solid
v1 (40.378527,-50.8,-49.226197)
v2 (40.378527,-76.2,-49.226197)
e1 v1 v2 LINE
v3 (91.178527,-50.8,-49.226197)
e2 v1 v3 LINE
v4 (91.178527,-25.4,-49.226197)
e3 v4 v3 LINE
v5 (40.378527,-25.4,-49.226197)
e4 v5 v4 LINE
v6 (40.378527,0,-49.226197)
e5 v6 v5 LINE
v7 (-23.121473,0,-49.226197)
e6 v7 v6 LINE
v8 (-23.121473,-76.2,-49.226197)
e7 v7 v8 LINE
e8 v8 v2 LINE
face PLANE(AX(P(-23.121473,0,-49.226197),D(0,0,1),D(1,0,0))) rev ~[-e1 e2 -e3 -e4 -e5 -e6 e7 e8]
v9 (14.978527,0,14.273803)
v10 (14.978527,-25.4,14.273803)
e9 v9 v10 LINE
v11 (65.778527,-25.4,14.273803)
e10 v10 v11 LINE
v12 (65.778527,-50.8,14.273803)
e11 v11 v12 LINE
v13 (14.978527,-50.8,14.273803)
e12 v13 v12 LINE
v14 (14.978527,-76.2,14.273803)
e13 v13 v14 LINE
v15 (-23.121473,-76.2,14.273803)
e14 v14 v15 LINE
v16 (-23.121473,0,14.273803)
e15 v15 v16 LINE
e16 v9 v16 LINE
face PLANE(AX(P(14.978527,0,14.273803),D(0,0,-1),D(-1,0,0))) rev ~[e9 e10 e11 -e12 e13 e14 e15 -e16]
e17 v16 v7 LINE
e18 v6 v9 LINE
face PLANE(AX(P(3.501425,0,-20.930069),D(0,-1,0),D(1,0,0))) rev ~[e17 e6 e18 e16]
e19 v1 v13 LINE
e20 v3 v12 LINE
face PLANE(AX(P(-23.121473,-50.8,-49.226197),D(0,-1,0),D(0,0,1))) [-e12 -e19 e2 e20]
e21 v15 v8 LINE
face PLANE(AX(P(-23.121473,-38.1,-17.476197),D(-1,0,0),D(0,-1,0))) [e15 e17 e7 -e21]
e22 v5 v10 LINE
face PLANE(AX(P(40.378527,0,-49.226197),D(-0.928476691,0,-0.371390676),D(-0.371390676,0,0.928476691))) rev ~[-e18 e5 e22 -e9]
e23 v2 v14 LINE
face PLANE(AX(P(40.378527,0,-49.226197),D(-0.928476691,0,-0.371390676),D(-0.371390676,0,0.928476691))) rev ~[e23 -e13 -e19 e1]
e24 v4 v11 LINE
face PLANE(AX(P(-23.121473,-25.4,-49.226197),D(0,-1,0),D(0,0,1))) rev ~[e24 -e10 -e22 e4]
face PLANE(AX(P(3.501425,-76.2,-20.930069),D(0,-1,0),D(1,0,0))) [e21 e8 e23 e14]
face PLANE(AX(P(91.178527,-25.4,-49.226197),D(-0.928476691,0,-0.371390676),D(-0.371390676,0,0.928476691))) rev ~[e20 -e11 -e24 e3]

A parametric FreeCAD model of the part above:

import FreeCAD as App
import Part
import Sketcher
from FreeCAD import Vector
Q = App.Units.Quantity


def add_polygon(sketch, points):
    """Adds a closed chain of lines whose ends are joined by coincident constraints."""
    first, n = sketch.GeometryCount, len(points)
    for a, b in zip(points, points[1:] + points[:1]):
        sketch.addGeometry(Part.LineSegment(App.Vector(*a, 0), App.Vector(*b, 0)), False)
    for i in range(n):
        sketch.addConstraint(Sketcher.Constraint("Coincident", first + i, 2, first + (i + 1) % n, 1))

doc = App.newDocument("Part")
body = doc.addObject("PartDesign::Body", "Body")

# Sketch on XZ plane
sketch1 = doc.addObject("Sketcher::SketchObject", "Sketch")
body.addObject(sketch1)
sketch1.AttachmentSupport = (doc.XZ_Plane, [""])
sketch1.MapMode = "FlatFace"
add_polygon(sketch1, [(-23, 14), (-23, -49), (40, -49), (15, 14)])  # lines 0-3
sketch1.addConstraint([
    Sketcher.Constraint("Vertical", 0),
    Sketcher.Constraint("Horizontal", 1),
    Sketcher.Constraint("Horizontal", 3),
    Sketcher.Constraint("Equal", 1, 0),
    Sketcher.Constraint("DistanceX", 1, 1, 1, 2, Q("2.5 in")),
    Sketcher.Constraint("DistanceX", 3, 2, 3, 1, Q("1.5 in")),
    Sketcher.Constraint("DistanceX", 0, 2, -1, 1, 23.121473),
    Sketcher.Constraint("DistanceY", 0, 2, -1, 1, 49.226197),
])
pad1 = doc.addObject("PartDesign::Pad", "Pad")
body.addObject(pad1)
pad1.Profile = sketch1
pad1.Length = Q("3 in")

# Sketch on YZ plane
sketch2 = doc.addObject("Sketcher::SketchObject", "Sketch001")
body.addObject(sketch2)
sketch2.AttachmentSupport = (doc.YZ_Plane, [""])
sketch2.MapMode = "FlatFace"
sketch2.AttachmentOffset = App.Placement(Vector(0, 0, -23.121473), App.Rotation())
add_polygon(sketch2, [(-25, 14), (-25, -49), (-51, -49), (-51, 14)])  # lines 0-3
sketch2.addConstraint([
    Sketcher.Constraint("Vertical", 0),
    Sketcher.Constraint("Horizontal", 1),
    Sketcher.Constraint("Vertical", 2),
    Sketcher.Constraint("Horizontal", 3),
    Sketcher.Constraint("DistanceX", 1, 2, 1, 1, Q("1 in")),
    Sketcher.Constraint("DistanceY", 0, 2, 0, 1, Q("2.5 in")),
    Sketcher.Constraint("DistanceX", 0, 2, -1, 1, Q("1 in")),
    Sketcher.Constraint("DistanceY", 0, 2, -1, 1, 49.226197),
])
pad2 = doc.addObject("PartDesign::Pad", "Pad001")
body.addObject(pad2)
pad2.Profile = sketch2
pad2.Length = Q("4.5 in")

# Sketch on XZ plane
sketch3 = doc.addObject("Sketcher::SketchObject", "Sketch002")
body.addObject(sketch3)
sketch3.AttachmentSupport = (doc.XZ_Plane, [""])
sketch3.MapMode = "FlatFace"
sketch3.AttachmentOffset = App.Placement(Vector(0, 0, 1 * 25.4), App.Rotation())
add_polygon(sketch3, [(91, -49), (66, 14), (91, 14)])  # lines 0-2
sketch3.addConstraint([
    Sketcher.Constraint("Horizontal", 1),
    Sketcher.Constraint("Vertical", 2),
    Sketcher.Constraint("DistanceX", 1, 1, 1, 2, Q("1 in")),
    Sketcher.Constraint("DistanceY", 2, 2, 2, 1, Q("2.5 in")),
    Sketcher.Constraint("DistanceX", -1, 1, 0, 2, 65.778527),
    Sketcher.Constraint("DistanceY", -1, 1, 0, 2, 14.273803),
])
pocket1 = doc.addObject("PartDesign::Pocket", "Pocket")
body.addObject(pocket1)
pocket1.Profile = sketch3
pocket1.Length = Q("1 in")
pocket1.Reversed = True

doc.recompute()
